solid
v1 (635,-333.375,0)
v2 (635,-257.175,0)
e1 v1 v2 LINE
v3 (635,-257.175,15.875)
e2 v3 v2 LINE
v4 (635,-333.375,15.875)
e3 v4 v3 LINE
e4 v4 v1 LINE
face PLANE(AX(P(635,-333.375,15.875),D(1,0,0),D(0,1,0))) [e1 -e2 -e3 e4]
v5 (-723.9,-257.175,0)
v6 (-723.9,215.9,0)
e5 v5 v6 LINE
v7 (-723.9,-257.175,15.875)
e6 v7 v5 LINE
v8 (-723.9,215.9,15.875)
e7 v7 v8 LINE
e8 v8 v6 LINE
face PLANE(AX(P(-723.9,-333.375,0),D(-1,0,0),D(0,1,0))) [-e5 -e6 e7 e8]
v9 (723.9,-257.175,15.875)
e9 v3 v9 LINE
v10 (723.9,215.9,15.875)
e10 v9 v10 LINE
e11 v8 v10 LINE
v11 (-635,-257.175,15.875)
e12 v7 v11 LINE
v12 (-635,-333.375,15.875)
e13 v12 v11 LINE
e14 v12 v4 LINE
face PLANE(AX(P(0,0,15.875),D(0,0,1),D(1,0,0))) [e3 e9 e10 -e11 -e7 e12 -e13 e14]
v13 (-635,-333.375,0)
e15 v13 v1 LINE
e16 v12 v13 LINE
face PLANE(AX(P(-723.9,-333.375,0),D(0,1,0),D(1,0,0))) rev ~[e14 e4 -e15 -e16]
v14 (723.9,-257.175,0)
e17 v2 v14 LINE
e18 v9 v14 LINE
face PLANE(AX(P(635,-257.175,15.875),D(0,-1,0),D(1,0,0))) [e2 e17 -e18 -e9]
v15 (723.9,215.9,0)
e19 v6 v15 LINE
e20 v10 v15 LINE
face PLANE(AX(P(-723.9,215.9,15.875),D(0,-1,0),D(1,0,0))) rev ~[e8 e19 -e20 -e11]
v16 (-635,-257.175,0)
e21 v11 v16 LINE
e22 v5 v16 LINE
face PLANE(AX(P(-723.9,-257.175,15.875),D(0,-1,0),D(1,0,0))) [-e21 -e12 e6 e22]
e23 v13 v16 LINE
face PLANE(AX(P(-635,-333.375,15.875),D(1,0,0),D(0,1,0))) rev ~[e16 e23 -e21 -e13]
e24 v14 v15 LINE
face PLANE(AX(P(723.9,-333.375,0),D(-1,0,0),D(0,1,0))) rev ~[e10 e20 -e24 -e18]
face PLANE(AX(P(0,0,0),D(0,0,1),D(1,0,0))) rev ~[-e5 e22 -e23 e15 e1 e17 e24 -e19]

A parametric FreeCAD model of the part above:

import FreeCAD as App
import Part
import Sketcher

V = App.Vector
Q = App.Units.Quantity


def add_polygon(sketch, points):
    """Adds a closed chain of lines whose ends are joined by coincident constraints."""
    first, n = sketch.GeometryCount, len(points)
    for a, b in zip(points, points[1:] + points[:1]):
        sketch.addGeometry(Part.LineSegment(App.Vector(*a, 0), App.Vector(*b, 0)), False)
    for i in range(n):
        sketch.addConstraint(Sketcher.Constraint("Coincident", first + i, 2, first + (i + 1) % n, 1))

doc = App.newDocument("Part")
body = doc.addObject("PartDesign::Body", "Body")

# Sketch on XY plane
sketch1 = doc.addObject("Sketcher::SketchObject", "Sketch")
body.addObject(sketch1)
sketch1.AttachmentSupport = (doc.XY_Plane, [""])
sketch1.MapMode = "FlatFace"
add_polygon(sketch1, [(-724, 333), (-724, -333), (724, -333), (724, 333)])  # lines 0-3
sketch1.addConstraint(Sketcher.Constraint("Vertical", 0))
sketch1.addConstraint(Sketcher.Constraint("Horizontal", 1))
sketch1.addConstraint(Sketcher.Constraint("Vertical", 2))
sketch1.addConstraint(Sketcher.Constraint("Horizontal", 3))
sketch1.addConstraint(Sketcher.Constraint("Symmetric", 0, 2, 2, 2, -1, 1))
sketch1.addConstraint(Sketcher.Constraint("DistanceX", 1, 1, 1, 2, Q("57 in")))
sketch1.addConstraint(Sketcher.Constraint("DistanceY", 0, 2, 0, 1, Q("26.25 in")))
pad1 = doc.addObject("PartDesign::Pad", "Pad")
body.addObject(pad1)
pad1.Profile = sketch1
pad1.Length = Q("0.625 in")

# Sketch on XY plane
sketch2 = doc.addObject("Sketcher::SketchObject", "Sketch001")
body.addObject(sketch2)
sketch2.AttachmentSupport = (doc.XY_Plane, [""])
sketch2.MapMode = "FlatFace"
sketch2.AttachmentOffset = App.Placement(V(0, 0, 0.625 * 25.4), App.Rotation())
add_polygon(sketch2, [(-724, -257), (-724, -333), (-635, -333), (-635, -257)])  # lines 0-3
add_polygon(sketch2, [(-724, 333), (-724, 257), (-635, 257), (-635, 333)])  # lines 4-7
add_polygon(sketch2, [(635, 333), (635, 257), (724, 257), (724, 333)])  # lines 8-11
add_polygon(sketch2, [(635, -257), (635, -333), (724, -333), (724, -257)])  # lines 12-15
sketch2.addConstraint(Sketcher.Constraint("Vertical", 0))
sketch2.addConstraint(Sketcher.Constraint("Horizontal", 1))
sketch2.addConstraint(Sketcher.Constraint("Vertical", 2))
sketch2.addConstraint(Sketcher.Constraint("Horizontal", 3))
sketch2.addConstraint(Sketcher.Constraint("Vertical", 4))
sketch2.addConstraint(Sketcher.Constraint("Horizontal", 5))
sketch2.addConstraint(Sketcher.Constraint("Vertical", 6))
sketch2.addConstraint(Sketcher.Constraint("Horizontal", 7))
sketch2.addConstraint(Sketcher.Constraint("Vertical", 8))
sketch2.addConstraint(Sketcher.Constraint("Horizontal", 9))
sketch2.addConstraint(Sketcher.Constraint("Vertical", 10))
sketch2.addConstraint(Sketcher.Constraint("Horizontal", 11))
sketch2.addConstraint(Sketcher.Constraint("Vertical", 12))
sketch2.addConstraint(Sketcher.Constraint("Horizontal", 13))
sketch2.addConstraint(Sketcher.Constraint("Vertical", 14))
sketch2.addConstraint(Sketcher.Constraint("Horizontal", 15))
sketch2.addConstraint(Sketcher.Constraint("Symmetric", 2, 2, 8, 2, -1, 1))
sketch2.addConstraint(Sketcher.Constraint("Symmetric", 0, 2, 10, 2, -1, 1))
sketch2.addConstraint(Sketcher.Constraint("Symmetric", 6, 2, 12, 2, -1, 1))
sketch2.addConstraint(Sketcher.Constraint("Symmetric", 4, 2, 14, 2, -1, 1))
sketch2.addConstraint(Sketcher.Constraint("Symmetric", 5, 2, 8, 2, -2))
sketch2.addConstraint(Sketcher.Constraint("Symmetric", 7, 2, 10, 2, -2))
sketch2.addConstraint(Sketcher.Constraint("DistanceY", 0, 2, 0, 1, Q("3 in")))
sketch2.addConstraint(Sketcher.Constraint("DistanceX", 1, 1, 1, 2, Q("3.5 in")))
sketch2.addConstraint(Sketcher.Constraint("DistanceX", 1, 2, -1, 1, Q("25 in")))
sketch2.addConstraint(Sketcher.Constraint("DistanceY", 3, 2, 4, 2, Q("20.25 in")))
pocket1 = doc.addObject("PartDesign::Pocket", "Pocket")
body.addObject(pocket1)
pocket1.Profile = sketch2
pocket1.Type = "ThroughAll"

# Sketch on XY plane
sketch3 = doc.addObject("Sketcher::SketchObject", "Sketch002")
body.addObject(sketch3)
sketch3.AttachmentSupport = (doc.XY_Plane, [""])
sketch3.MapMode = "FlatFace"
sketch3.AttachmentOffset = App.Placement(V(0, 0, 0.625 * 25.4), App.Rotation())
add_polygon(sketch3, [(-724, 257), (-724, 216), (724, 216), (724, 257), (635, 257), (635, 333), (-635, 333), (-635, 257)])  # lines 0-7
sketch3.addConstraint(Sketcher.Constraint("Vertical", 0))
sketch3.addConstraint(Sketcher.Constraint("Horizontal", 1))
sketch3.addConstraint(Sketcher.Constraint("Vertical", 2))
sketch3.addConstraint(Sketcher.Constraint("Horizontal", 3))
sketch3.addConstraint(Sketcher.Constraint("Vertical", 4))
sketch3.addConstraint(Sketcher.Constraint("Horizontal", 5))
sketch3.addConstraint(Sketcher.Constraint("Vertical", 6))
sketch3.addConstraint(Sketcher.Constraint("Horizontal", 7))
sketch3.addConstraint(Sketcher.Constraint("Symmetric", 3, 2, 6, 2, -2))
sketch3.addConstraint(Sketcher.Constraint("Equal", 3, 7))
sketch3.addConstraint(Sketcher.Constraint("DistanceX", 1, 1, 1, 2, Q("57 in")))
sketch3.addConstraint(Sketcher.Constraint("DistanceX", 5, 2, 5, 1, Q("50 in")))
sketch3.addConstraint(Sketcher.Constraint("DistanceY", 4, 1, 4, 2, Q("3 in")))
sketch3.addConstraint(Sketcher.Constraint("DistanceY", -1, 1, 0, 2, Q("8.5 in")))
sketch3.addConstraint(Sketcher.Constraint("DistanceY", 0, 2, 0, 1, Q("1.625 in")))
pocket2 = doc.addObject("PartDesign::Pocket", "Pocket001")
body.addObject(pocket2)
pocket2.Profile = sketch3
pocket2.Type = "ThroughAll"

doc.recompute()
